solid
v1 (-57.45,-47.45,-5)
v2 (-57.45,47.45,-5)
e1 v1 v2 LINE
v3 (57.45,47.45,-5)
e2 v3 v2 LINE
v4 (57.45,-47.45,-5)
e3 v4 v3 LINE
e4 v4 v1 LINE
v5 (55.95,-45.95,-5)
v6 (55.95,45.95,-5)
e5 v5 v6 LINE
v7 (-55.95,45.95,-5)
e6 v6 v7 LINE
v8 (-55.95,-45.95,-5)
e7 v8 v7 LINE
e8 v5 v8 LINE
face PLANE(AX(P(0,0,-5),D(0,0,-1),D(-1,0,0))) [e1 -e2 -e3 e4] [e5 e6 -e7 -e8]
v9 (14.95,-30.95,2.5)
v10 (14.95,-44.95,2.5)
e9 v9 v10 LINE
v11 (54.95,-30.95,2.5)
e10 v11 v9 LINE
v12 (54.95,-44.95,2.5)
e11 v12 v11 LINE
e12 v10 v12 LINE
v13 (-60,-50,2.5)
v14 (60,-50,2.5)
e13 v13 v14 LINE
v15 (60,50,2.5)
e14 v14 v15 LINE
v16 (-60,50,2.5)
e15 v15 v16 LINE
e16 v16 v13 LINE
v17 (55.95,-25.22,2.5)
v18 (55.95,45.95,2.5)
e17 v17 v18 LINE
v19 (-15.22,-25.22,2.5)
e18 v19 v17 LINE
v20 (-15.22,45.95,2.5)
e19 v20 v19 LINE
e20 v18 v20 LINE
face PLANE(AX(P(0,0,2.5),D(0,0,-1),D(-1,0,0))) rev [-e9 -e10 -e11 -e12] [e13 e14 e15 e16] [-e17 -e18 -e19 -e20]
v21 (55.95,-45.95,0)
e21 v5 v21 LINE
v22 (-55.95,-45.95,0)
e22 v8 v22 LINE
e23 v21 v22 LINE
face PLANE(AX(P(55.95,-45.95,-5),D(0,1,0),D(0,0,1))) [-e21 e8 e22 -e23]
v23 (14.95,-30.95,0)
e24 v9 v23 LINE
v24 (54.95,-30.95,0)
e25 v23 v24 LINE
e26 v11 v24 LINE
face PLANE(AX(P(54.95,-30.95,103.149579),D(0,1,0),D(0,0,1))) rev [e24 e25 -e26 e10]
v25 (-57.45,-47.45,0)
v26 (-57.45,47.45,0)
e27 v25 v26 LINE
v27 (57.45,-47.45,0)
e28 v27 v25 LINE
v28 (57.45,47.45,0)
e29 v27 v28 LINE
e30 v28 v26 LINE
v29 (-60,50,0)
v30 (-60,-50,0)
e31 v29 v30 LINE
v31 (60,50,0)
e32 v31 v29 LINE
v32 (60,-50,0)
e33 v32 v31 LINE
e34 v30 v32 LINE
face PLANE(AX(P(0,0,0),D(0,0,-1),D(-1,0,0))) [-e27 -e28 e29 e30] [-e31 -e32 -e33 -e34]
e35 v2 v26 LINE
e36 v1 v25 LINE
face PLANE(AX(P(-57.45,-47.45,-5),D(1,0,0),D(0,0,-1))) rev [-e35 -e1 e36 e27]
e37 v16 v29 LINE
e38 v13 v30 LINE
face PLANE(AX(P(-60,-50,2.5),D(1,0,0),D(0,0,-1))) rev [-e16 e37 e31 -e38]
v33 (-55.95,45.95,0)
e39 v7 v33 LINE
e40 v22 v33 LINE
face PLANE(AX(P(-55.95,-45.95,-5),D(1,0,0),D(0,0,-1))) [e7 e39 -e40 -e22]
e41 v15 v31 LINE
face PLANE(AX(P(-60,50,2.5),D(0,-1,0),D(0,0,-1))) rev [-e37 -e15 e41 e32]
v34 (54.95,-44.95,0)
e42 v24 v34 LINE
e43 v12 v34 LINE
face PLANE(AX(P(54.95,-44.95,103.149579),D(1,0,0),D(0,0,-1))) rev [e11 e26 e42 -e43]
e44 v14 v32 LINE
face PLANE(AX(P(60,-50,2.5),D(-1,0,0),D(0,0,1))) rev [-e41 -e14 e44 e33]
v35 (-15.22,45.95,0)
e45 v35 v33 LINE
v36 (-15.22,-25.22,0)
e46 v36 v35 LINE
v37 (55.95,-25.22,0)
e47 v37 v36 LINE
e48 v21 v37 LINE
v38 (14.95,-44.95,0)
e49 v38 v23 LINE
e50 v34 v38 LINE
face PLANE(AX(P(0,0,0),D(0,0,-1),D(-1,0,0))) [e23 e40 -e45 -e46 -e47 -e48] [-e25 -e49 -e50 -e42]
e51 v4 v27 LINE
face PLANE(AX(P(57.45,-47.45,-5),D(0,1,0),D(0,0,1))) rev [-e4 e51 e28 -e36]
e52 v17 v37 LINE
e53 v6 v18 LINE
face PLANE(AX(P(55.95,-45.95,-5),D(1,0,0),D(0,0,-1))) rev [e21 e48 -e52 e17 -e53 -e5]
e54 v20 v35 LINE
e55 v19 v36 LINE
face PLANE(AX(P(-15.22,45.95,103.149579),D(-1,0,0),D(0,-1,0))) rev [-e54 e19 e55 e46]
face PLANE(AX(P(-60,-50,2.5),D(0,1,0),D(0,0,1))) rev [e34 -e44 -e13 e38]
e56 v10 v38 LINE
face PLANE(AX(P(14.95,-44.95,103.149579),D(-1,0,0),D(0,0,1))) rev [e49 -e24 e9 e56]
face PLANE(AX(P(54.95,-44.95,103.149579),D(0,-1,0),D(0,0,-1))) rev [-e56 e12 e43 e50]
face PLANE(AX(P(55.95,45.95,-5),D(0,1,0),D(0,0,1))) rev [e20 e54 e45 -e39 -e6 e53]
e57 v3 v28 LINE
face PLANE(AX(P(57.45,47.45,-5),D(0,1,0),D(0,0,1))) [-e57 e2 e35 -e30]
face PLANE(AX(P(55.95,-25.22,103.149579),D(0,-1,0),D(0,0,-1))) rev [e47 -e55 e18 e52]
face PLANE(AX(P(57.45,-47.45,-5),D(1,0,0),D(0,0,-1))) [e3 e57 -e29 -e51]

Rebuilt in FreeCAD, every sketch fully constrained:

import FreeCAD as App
import Part
import Sketcher

V = App.Vector


def add_polygon(sketch, points):
    """Adds a closed chain of lines whose ends are joined by coincident constraints."""
    first, n = sketch.GeometryCount, len(points)
    for a, b in zip(points, points[1:] + points[:1]):
        sketch.addGeometry(Part.LineSegment(App.Vector(*a, 0), App.Vector(*b, 0)), False)
    for i in range(n):
        sketch.addConstraint(Sketcher.Constraint("Coincident", first + i, 2, first + (i + 1) % n, 1))

doc = App.newDocument("Part")
params = doc.addObject("Spreadsheet::Sheet", "Params")
for row, (alias, value) in enumerate([
    ("sketch1_width", "120 mm"),
    ("sketch1_height", "100 mm"),
    ("pad1_length", "2.5 mm"),
    ("sketch2_width", "114.9 mm"),
    ("sketch2_width2", "111.9 mm"),
    ("sketch2_height", "94.9 mm"),
    ("sketch2_height2", "91.9 mm"),
    ("pad2_length", "5 mm"),
    ("sketch3_width", "40 mm"),
    ("sketch3_height", "14 mm"),
    ("sketch3_width2", "71.17 mm"),
    ("pocket1_length", "2.5 mm"),
], start=1):
    params.set(f"A{row}", alias)
    params.set(f"B{row}", "=" + value)
    params.setAlias(f"B{row}", alias)

body = doc.addObject("PartDesign::Body", "Body")

# Sketch on XY plane
sketch1 = doc.addObject("Sketcher::SketchObject", "Sketch")
body.addObject(sketch1)
sketch1.AttachmentSupport = (doc.XY_Plane, [""])
sketch1.MapMode = "FlatFace"
add_polygon(sketch1, [(-60, 50), (-60, -50), (60, -50), (60, 50)])  # lines 0-3
sketch1.addConstraint([
    Sketcher.Constraint("Vertical", 0),
    Sketcher.Constraint("Horizontal", 1),
    Sketcher.Constraint("Vertical", 2),
    Sketcher.Constraint("Horizontal", 3),
    Sketcher.Constraint("Symmetric", 0, 2, 2, 2, -1, 1),
    Sketcher.Constraint("DistanceX", 1, 1, 1, 2, 120.0),
    Sketcher.Constraint("DistanceY", 0, 2, 0, 1, 100.0),
])
sketch1.setExpression("Constraints[9]", "Params.sketch1_width")
sketch1.setExpression("Constraints[10]", "Params.sketch1_height")
pad1 = doc.addObject("PartDesign::Pad", "Pad")
body.addObject(pad1)
pad1.Profile = sketch1
pad1.setExpression("Length", "Params.pad1_length")

# Sketch on XY plane
sketch2 = doc.addObject("Sketcher::SketchObject", "Sketch001")
body.addObject(sketch2)
sketch2.AttachmentSupport = (doc.XY_Plane, [""])
sketch2.MapMode = "FlatFace"
add_polygon(sketch2, [(57.45, 47.45), (57.45, -47.45), (-57.45, -47.45), (-57.45, 47.45)])  # lines 0-3
add_polygon(sketch2, [(-55.95, -45.95), (55.95, -45.95), (55.95, 45.95), (-55.95, 45.95)])  # lines 4-7
sketch2.addConstraint([
    Sketcher.Constraint("Vertical", 0),
    Sketcher.Constraint("Horizontal", 1),
    Sketcher.Constraint("Vertical", 2),
    Sketcher.Constraint("Horizontal", 3),
    Sketcher.Constraint("Horizontal", 4),
    Sketcher.Constraint("Vertical", 5),
    Sketcher.Constraint("Horizontal", 6),
    Sketcher.Constraint("Vertical", 7),
    Sketcher.Constraint("Symmetric", 0, 2, 2, 2, -1, 1),
    Sketcher.Constraint("Symmetric", 4, 2, 6, 2, -1, 1),
    Sketcher.Constraint("DistanceX", 1, 2, 1, 1, 114.9),
    Sketcher.Constraint("DistanceX", 4, 1, 4, 2, 111.9),
    Sketcher.Constraint("DistanceY", 0, 2, 0, 1, 94.9),
    Sketcher.Constraint("DistanceY", 5, 1, 5, 2, 91.9),
])
sketch2.setExpression("Constraints[18]", "Params.sketch2_width")
sketch2.setExpression("Constraints[19]", "Params.sketch2_width2")
sketch2.setExpression("Constraints[20]", "Params.sketch2_height")
sketch2.setExpression("Constraints[21]", "Params.sketch2_height2")
pad2 = doc.addObject("PartDesign::Pad", "Pad001")
body.addObject(pad2)
pad2.Profile = sketch2
pad2.setExpression("Length", "Params.pad2_length")
pad2.Reversed = True

# Sketch on XY plane
sketch3 = doc.addObject("Sketcher::SketchObject", "Sketch002")
body.addObject(sketch3)
sketch3.AttachmentSupport = (doc.XY_Plane, [""])
sketch3.MapMode = "FlatFace"
add_polygon(sketch3, [(55.95, 45.95), (55.95, -25.22), (-15.22, -25.22), (-15.22, 45.95)])  # lines 0-3
add_polygon(sketch3, [(54.95, -30.95), (54.95, -44.95), (14.95, -44.95), (14.95, -30.95)])  # lines 4-7
sketch3.addConstraint([
    Sketcher.Constraint("Vertical", 0),
    Sketcher.Constraint("Horizontal", 1),
    Sketcher.Constraint("Vertical", 2),
    Sketcher.Constraint("Horizontal", 3),
    Sketcher.Constraint("Vertical", 4),
    Sketcher.Constraint("Horizontal", 5),
    Sketcher.Constraint("Vertical", 6),
    Sketcher.Constraint("Horizontal", 7),
    Sketcher.Constraint("Equal", 3, 0),
    Sketcher.Constraint("DistanceX", 5, 2, 5, 1, 40.0),
    Sketcher.Constraint("DistanceY", 4, 2, 4, 1, 14.0),
    Sketcher.Constraint("DistanceX", 4, 2, 0, 2, 1.0),
    Sketcher.Constraint("DistanceX", 1, 2, 1, 1, 71.17),
    Sketcher.Constraint("DistanceY", 4, 2, 3, 2, 90.9),
    Sketcher.Constraint("DistanceX", -1, 1, 0, 2, 55.95),
    Sketcher.Constraint("DistanceY", 0, 2, -1, 1, 25.22),
])
sketch3.setExpression("Constraints[17]", "Params.sketch3_width")
sketch3.setExpression("Constraints[18]", "Params.sketch3_height")
sketch3.setExpression("Constraints[20]", "Params.sketch3_width2")
pocket1 = doc.addObject("PartDesign::Pocket", "Pocket")
body.addObject(pocket1)
pocket1.Profile = sketch3
pocket1.setExpression("Length", "Params.pocket1_length")
pocket1.Reversed = True

doc.recompute()
